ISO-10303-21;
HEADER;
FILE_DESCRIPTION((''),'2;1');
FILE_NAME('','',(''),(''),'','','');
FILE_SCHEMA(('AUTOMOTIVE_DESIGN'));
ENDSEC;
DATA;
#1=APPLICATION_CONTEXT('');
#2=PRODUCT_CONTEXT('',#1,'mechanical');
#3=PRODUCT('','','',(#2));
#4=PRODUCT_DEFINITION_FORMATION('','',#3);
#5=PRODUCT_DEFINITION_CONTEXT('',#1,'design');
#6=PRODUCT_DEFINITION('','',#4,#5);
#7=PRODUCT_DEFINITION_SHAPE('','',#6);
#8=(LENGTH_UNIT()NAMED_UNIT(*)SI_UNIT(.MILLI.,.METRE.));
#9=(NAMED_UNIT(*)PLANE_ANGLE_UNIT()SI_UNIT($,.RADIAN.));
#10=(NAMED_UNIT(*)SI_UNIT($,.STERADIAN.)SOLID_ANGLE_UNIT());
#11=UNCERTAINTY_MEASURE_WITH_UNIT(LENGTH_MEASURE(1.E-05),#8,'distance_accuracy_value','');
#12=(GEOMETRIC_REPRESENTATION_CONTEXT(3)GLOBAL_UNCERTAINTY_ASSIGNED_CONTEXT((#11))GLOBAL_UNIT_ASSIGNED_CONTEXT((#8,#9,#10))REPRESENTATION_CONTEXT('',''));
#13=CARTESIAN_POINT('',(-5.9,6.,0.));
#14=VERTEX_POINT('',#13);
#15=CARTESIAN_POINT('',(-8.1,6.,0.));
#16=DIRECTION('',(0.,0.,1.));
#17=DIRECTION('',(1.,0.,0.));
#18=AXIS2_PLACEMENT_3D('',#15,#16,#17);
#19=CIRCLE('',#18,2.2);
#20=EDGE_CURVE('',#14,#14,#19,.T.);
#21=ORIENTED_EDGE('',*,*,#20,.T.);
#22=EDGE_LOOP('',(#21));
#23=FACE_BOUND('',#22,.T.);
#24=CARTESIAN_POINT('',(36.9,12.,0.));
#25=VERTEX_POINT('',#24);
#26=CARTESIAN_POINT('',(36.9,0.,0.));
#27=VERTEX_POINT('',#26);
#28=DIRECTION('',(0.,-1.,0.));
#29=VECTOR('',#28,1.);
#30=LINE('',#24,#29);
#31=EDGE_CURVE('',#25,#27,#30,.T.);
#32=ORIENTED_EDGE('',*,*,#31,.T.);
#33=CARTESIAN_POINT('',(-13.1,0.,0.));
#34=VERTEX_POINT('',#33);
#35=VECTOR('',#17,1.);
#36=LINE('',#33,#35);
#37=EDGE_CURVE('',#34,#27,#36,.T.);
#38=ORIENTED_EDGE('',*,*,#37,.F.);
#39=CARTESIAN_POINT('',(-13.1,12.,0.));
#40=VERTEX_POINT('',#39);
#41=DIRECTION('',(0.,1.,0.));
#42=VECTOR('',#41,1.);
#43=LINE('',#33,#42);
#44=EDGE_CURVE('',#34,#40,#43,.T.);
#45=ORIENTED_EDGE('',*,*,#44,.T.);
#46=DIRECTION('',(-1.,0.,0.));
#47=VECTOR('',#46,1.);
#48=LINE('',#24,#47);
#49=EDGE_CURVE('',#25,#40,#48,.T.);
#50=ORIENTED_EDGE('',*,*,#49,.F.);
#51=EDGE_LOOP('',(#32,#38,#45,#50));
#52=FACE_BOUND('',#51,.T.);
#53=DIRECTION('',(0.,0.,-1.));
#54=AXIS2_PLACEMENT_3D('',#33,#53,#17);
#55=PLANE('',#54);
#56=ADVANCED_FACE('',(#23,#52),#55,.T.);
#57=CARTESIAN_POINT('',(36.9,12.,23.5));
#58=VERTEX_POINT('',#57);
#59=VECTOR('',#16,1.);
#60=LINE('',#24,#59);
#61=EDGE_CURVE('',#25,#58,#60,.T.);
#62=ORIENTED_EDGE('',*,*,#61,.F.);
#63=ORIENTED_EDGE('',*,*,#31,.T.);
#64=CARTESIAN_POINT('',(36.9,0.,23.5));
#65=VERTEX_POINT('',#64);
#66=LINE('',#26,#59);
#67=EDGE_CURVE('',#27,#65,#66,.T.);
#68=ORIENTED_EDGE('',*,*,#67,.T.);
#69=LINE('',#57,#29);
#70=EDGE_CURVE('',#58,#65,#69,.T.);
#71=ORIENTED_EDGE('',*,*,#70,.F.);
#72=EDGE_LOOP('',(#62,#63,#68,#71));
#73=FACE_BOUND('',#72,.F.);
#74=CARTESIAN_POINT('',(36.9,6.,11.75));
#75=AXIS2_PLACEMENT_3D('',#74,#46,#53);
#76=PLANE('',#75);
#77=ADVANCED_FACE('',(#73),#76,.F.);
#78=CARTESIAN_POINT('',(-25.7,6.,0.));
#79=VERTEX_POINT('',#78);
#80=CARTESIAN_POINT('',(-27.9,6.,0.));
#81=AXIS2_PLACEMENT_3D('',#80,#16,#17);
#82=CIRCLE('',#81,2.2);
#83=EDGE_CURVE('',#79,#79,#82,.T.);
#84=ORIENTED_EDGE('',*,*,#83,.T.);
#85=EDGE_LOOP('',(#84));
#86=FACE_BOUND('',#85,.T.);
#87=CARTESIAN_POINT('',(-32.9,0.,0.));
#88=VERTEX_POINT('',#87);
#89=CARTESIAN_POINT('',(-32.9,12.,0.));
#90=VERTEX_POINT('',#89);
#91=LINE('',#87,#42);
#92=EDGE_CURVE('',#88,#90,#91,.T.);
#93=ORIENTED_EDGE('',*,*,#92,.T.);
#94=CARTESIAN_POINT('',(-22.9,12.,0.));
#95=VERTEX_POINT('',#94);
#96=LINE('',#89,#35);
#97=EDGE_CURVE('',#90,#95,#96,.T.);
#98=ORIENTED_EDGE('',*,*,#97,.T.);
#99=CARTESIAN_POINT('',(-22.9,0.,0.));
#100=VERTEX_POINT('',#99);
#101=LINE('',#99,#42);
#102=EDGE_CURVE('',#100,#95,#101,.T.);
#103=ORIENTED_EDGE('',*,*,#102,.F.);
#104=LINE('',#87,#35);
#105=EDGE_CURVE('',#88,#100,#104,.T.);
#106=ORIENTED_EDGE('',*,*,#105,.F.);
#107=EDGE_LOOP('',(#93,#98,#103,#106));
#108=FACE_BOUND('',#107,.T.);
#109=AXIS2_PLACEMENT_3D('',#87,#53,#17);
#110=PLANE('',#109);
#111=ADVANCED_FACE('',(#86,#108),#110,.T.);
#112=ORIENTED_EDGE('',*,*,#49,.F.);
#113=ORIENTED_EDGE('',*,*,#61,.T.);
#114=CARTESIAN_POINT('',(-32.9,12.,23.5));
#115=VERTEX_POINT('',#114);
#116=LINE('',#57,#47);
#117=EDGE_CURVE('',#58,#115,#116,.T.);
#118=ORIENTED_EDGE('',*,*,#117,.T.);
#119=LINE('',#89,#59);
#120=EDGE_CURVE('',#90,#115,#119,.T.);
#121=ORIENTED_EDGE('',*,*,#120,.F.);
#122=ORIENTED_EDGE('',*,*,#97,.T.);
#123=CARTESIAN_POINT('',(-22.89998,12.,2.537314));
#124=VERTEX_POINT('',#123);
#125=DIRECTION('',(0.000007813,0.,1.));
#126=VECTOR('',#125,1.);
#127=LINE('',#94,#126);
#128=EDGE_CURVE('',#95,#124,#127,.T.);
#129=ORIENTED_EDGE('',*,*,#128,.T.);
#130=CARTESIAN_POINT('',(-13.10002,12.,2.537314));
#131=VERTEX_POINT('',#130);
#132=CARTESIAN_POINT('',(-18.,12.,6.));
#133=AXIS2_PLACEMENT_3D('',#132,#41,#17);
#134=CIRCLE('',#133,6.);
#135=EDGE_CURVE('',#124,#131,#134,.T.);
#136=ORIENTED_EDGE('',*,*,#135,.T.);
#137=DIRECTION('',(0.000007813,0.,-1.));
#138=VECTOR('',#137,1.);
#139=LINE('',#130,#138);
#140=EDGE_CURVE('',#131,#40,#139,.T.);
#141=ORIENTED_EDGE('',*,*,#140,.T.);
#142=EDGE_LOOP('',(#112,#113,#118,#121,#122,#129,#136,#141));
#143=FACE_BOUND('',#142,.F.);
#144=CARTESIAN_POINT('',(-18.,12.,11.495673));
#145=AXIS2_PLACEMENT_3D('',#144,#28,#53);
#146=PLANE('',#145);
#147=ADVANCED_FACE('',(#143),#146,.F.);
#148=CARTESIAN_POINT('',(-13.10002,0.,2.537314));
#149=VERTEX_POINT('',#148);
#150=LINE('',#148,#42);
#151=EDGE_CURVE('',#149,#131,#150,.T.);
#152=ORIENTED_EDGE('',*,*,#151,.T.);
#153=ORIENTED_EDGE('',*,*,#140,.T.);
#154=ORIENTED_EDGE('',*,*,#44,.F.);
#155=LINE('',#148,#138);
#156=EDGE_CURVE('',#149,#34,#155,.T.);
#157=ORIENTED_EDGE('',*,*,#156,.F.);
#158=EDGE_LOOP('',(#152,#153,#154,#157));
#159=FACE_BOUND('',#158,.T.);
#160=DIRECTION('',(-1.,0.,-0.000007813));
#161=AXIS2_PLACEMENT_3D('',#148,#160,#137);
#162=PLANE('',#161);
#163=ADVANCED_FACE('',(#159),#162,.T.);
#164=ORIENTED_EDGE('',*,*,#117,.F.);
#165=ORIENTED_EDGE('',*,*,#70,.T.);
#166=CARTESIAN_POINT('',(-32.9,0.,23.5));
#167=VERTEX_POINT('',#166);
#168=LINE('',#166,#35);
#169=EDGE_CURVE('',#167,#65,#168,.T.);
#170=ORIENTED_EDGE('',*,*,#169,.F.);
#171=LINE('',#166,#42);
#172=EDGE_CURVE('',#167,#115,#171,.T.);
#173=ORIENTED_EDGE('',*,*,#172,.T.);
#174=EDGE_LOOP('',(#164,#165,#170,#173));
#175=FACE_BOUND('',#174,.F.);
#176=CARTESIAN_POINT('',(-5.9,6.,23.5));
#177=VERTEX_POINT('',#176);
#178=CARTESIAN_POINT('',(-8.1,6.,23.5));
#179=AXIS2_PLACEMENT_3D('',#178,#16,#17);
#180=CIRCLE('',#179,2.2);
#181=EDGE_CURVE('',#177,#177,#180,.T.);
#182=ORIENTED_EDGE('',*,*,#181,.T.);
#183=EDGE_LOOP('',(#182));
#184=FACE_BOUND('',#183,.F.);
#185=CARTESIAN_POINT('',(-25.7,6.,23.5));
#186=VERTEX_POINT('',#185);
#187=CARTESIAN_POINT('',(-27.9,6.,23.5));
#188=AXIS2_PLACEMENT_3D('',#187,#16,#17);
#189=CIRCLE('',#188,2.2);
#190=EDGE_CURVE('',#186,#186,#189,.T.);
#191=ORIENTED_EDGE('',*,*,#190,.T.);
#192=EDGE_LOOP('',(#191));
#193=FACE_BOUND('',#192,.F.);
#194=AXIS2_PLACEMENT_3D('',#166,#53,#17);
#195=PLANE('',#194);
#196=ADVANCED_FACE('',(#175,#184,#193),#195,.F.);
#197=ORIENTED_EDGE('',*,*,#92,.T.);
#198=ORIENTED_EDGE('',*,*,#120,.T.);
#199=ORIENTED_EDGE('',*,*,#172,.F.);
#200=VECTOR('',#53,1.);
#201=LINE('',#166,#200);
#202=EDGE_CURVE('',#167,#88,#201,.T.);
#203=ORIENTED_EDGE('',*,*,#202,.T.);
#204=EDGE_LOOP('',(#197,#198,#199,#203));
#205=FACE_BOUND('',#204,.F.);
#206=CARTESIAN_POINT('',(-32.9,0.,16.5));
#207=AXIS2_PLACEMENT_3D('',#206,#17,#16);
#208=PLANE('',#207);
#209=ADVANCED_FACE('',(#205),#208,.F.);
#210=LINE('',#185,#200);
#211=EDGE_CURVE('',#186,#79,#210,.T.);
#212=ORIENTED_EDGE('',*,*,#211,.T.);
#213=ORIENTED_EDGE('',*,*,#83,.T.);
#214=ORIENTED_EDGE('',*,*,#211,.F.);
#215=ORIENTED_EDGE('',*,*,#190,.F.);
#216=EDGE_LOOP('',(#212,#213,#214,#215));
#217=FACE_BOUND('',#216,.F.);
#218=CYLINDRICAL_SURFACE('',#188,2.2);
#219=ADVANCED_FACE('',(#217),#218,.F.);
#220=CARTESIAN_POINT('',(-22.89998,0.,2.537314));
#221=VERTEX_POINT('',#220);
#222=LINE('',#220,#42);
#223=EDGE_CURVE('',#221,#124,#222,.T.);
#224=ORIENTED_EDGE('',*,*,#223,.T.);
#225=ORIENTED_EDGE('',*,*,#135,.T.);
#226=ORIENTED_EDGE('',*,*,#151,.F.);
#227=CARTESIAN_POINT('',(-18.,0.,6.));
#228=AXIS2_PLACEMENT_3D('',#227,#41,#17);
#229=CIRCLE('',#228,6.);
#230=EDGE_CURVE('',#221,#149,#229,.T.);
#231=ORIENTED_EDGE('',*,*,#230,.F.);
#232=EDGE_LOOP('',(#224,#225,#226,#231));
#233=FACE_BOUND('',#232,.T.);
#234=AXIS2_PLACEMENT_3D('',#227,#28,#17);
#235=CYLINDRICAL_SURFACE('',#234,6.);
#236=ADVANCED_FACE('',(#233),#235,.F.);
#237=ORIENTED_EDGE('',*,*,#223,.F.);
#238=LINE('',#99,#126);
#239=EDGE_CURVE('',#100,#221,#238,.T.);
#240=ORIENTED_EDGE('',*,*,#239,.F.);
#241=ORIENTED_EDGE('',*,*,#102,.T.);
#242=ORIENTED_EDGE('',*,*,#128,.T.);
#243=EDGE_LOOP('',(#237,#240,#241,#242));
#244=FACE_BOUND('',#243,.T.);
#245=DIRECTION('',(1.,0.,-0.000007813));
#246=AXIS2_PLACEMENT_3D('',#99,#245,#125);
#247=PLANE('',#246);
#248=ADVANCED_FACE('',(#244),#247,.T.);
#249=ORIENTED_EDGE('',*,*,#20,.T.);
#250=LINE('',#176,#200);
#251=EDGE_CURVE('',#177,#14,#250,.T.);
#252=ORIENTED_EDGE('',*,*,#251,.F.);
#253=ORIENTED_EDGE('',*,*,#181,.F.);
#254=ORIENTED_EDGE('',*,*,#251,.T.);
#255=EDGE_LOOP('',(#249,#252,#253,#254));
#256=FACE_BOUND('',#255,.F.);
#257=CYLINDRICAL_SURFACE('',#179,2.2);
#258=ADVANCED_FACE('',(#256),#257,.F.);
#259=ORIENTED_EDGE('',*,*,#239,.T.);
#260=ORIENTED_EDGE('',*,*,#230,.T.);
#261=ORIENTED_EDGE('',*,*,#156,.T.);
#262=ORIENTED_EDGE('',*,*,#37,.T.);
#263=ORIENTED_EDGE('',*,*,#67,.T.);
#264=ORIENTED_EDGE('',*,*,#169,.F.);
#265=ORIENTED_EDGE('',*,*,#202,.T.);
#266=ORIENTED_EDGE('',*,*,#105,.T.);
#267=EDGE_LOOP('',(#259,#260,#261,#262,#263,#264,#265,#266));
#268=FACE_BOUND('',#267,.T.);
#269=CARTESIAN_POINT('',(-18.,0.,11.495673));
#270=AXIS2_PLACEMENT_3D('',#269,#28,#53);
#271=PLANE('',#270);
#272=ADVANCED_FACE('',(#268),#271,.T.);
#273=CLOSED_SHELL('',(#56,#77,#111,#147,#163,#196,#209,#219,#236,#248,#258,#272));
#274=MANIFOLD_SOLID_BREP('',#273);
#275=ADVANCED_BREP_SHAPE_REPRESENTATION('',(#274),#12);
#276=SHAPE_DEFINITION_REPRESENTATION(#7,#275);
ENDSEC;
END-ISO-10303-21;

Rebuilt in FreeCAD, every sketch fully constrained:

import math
import FreeCAD as App
import Part
import Sketcher

V = App.Vector
Q = App.Units.Quantity


def add_polygon(sketch, points):
    """Adds a closed chain of lines whose ends are joined by coincident constraints."""
    first, n = sketch.GeometryCount, len(points)
    for a, b in zip(points, points[1:] + points[:1]):
        sketch.addGeometry(Part.LineSegment(App.Vector(*a, 0), App.Vector(*b, 0)), False)
    for i in range(n):
        sketch.addConstraint(Sketcher.Constraint("Coincident", first + i, 2, first + (i + 1) % n, 1))

doc = App.newDocument("Part")
body = doc.addObject("PartDesign::Body", "Body")

sketch1 = doc.addObject("Sketcher::SketchObject", "Sketch")
body.addObject(sketch1)
sketch1.AttachmentSupport = (doc.XZ_Plane, [""])
sketch1.MapMode = "FlatFace"
sketch1.addGeometry([
    Part.LineSegment(V(-3.1, 0, 0), V(-3.1, 23.5, 0)),
    Part.LineSegment(V(-3.1, 23.5, 0), V(-32.9, 23.5, 0)),
    Part.LineSegment(V(-32.9, 23.5, 0), V(-32.9, 0, 0)),
    Part.LineSegment(V(-32.9, 0, 0), V(-22.9, 0, 0)),
    Part.LineSegment(V(-22.9, 0, 0), V(-22.9, 2.5, 0)),
    Part.ArcOfCircle(Part.Circle(V(-18, 6, 0), V(0, 0, 1), 6), math.radians(-35), math.radians(215)),
    Part.LineSegment(V(-13.1, 2.5, 0), V(-13.1, 0, 0)),
    Part.LineSegment(V(-13.1, 0, 0), V(-3.1, 0, 0)),
], False)
sketch1.addConstraint([
    Sketcher.Constraint("Coincident", 0, 2, 1, 1),
    Sketcher.Constraint("Coincident", 1, 2, 2, 1),
    Sketcher.Constraint("Coincident", 2, 2, 3, 1),
    Sketcher.Constraint("Coincident", 3, 2, 4, 1),
    Sketcher.Constraint("Coincident", 4, 2, 5, 2),
    Sketcher.Constraint("Coincident", 5, 1, 6, 1),
    Sketcher.Constraint("Coincident", 6, 2, 7, 1),
    Sketcher.Constraint("Coincident", 7, 2, 0, 1),
    Sketcher.Constraint("Vertical", 0),
    Sketcher.Constraint("Horizontal", 1),
    Sketcher.Constraint("Vertical", 2),
    Sketcher.Constraint("Horizontal", 3),
    Sketcher.Constraint("Vertical", 4),
    Sketcher.Constraint("Vertical", 6),
    Sketcher.Constraint("Horizontal", 7),
    Sketcher.Constraint("PointOnObject", 2, 2, -1),
    Sketcher.Constraint("PointOnObject", 6, 2, -1),
    Sketcher.Constraint("Horizontal", 4, 2, 5, 1),
    Sketcher.Constraint("Equal", 3, 7),
    Sketcher.Constraint("Radius", 5, Q("6 mm")),
    Sketcher.Constraint("DistanceX", 3, 1, 3, 2, Q("10 mm")),
    Sketcher.Constraint("DistanceX", 1, 2, 1, 1, Q("29.8 mm")),
    Sketcher.Constraint("DistanceY", 0, 1, 0, 2, Q("23.5 mm")),
    Sketcher.Constraint("DistanceX", 5, 3, -1, 1, Q("18 mm")),
    Sketcher.Constraint("DistanceY", -1, 1, 5, 3, Q("6 mm")),
])
pad1 = doc.addObject("PartDesign::Pad", "Pad")
body.addObject(pad1)
pad1.Profile = sketch1
pad1.Length = 12
pad1.Reversed = True

sketch2 = doc.addObject("Sketcher::SketchObject", "Sketch001")
body.addObject(sketch2)
sketch2.AttachmentSupport = (doc.XY_Plane, [""])
sketch2.MapMode = "FlatFace"
sketch2.AttachmentOffset = App.Placement(V(0, 0, 23.5), App.Rotation())
sketch2.addGeometry([
    Part.Circle(V(-8.1, 6, 0), V(0, 0, 1), 2.2),
    Part.Circle(V(-27.9, 6, 0), V(0, 0, 1), 2.2),
], False)
sketch2.addConstraint([
    Sketcher.Constraint("Equal", 0, 1),
    Sketcher.Constraint("Horizontal", 0, 3, 1, 3),
    Sketcher.Constraint("Diameter", 0, Q("4.4 mm")),
    Sketcher.Constraint("DistanceY", -1, 1, 0, 3, Q("6 mm")),
    Sketcher.Constraint("DistanceX", 0, 3, -1, 1, Q("8.1 mm")),
    Sketcher.Constraint("DistanceX", 1, 3, -1, 1, Q("27.9 mm")),
])
pocket1 = doc.addObject("PartDesign::Pocket", "Pocket")
body.addObject(pocket1)
pocket1.Profile = sketch2
pocket1.Type = "ThroughAll"

sketch3 = doc.addObject("Sketcher::SketchObject", "Sketch002")
body.addObject(sketch3)
sketch3.AttachmentSupport = (doc.YZ_Plane, [""])
sketch3.MapMode = "FlatFace"
sketch3.AttachmentOffset = App.Placement(V(0, 0, -3.1), App.Rotation())
add_polygon(sketch3, [(0, 24), (0, 0), (12, 0), (12, 24)])
sketch3.addConstraint([
    Sketcher.Constraint("Vertical", 0),
    Sketcher.Constraint("Horizontal", 1),
    Sketcher.Constraint("Vertical", 2),
    Sketcher.Constraint("Horizontal", 3),
    Sketcher.Constraint("Coincident", 0, 2, -1, 1),
    Sketcher.Constraint("DistanceX", 1, 1, 1, 2, Q("12 mm")),
    Sketcher.Constraint("DistanceY", 0, 2, 0, 1, Q("23.5 mm")),
])
pad2 = doc.addObject("PartDesign::Pad", "Pad001")
body.addObject(pad2)
pad2.Profile = sketch3
pad2.Length = 40

doc.recompute()
